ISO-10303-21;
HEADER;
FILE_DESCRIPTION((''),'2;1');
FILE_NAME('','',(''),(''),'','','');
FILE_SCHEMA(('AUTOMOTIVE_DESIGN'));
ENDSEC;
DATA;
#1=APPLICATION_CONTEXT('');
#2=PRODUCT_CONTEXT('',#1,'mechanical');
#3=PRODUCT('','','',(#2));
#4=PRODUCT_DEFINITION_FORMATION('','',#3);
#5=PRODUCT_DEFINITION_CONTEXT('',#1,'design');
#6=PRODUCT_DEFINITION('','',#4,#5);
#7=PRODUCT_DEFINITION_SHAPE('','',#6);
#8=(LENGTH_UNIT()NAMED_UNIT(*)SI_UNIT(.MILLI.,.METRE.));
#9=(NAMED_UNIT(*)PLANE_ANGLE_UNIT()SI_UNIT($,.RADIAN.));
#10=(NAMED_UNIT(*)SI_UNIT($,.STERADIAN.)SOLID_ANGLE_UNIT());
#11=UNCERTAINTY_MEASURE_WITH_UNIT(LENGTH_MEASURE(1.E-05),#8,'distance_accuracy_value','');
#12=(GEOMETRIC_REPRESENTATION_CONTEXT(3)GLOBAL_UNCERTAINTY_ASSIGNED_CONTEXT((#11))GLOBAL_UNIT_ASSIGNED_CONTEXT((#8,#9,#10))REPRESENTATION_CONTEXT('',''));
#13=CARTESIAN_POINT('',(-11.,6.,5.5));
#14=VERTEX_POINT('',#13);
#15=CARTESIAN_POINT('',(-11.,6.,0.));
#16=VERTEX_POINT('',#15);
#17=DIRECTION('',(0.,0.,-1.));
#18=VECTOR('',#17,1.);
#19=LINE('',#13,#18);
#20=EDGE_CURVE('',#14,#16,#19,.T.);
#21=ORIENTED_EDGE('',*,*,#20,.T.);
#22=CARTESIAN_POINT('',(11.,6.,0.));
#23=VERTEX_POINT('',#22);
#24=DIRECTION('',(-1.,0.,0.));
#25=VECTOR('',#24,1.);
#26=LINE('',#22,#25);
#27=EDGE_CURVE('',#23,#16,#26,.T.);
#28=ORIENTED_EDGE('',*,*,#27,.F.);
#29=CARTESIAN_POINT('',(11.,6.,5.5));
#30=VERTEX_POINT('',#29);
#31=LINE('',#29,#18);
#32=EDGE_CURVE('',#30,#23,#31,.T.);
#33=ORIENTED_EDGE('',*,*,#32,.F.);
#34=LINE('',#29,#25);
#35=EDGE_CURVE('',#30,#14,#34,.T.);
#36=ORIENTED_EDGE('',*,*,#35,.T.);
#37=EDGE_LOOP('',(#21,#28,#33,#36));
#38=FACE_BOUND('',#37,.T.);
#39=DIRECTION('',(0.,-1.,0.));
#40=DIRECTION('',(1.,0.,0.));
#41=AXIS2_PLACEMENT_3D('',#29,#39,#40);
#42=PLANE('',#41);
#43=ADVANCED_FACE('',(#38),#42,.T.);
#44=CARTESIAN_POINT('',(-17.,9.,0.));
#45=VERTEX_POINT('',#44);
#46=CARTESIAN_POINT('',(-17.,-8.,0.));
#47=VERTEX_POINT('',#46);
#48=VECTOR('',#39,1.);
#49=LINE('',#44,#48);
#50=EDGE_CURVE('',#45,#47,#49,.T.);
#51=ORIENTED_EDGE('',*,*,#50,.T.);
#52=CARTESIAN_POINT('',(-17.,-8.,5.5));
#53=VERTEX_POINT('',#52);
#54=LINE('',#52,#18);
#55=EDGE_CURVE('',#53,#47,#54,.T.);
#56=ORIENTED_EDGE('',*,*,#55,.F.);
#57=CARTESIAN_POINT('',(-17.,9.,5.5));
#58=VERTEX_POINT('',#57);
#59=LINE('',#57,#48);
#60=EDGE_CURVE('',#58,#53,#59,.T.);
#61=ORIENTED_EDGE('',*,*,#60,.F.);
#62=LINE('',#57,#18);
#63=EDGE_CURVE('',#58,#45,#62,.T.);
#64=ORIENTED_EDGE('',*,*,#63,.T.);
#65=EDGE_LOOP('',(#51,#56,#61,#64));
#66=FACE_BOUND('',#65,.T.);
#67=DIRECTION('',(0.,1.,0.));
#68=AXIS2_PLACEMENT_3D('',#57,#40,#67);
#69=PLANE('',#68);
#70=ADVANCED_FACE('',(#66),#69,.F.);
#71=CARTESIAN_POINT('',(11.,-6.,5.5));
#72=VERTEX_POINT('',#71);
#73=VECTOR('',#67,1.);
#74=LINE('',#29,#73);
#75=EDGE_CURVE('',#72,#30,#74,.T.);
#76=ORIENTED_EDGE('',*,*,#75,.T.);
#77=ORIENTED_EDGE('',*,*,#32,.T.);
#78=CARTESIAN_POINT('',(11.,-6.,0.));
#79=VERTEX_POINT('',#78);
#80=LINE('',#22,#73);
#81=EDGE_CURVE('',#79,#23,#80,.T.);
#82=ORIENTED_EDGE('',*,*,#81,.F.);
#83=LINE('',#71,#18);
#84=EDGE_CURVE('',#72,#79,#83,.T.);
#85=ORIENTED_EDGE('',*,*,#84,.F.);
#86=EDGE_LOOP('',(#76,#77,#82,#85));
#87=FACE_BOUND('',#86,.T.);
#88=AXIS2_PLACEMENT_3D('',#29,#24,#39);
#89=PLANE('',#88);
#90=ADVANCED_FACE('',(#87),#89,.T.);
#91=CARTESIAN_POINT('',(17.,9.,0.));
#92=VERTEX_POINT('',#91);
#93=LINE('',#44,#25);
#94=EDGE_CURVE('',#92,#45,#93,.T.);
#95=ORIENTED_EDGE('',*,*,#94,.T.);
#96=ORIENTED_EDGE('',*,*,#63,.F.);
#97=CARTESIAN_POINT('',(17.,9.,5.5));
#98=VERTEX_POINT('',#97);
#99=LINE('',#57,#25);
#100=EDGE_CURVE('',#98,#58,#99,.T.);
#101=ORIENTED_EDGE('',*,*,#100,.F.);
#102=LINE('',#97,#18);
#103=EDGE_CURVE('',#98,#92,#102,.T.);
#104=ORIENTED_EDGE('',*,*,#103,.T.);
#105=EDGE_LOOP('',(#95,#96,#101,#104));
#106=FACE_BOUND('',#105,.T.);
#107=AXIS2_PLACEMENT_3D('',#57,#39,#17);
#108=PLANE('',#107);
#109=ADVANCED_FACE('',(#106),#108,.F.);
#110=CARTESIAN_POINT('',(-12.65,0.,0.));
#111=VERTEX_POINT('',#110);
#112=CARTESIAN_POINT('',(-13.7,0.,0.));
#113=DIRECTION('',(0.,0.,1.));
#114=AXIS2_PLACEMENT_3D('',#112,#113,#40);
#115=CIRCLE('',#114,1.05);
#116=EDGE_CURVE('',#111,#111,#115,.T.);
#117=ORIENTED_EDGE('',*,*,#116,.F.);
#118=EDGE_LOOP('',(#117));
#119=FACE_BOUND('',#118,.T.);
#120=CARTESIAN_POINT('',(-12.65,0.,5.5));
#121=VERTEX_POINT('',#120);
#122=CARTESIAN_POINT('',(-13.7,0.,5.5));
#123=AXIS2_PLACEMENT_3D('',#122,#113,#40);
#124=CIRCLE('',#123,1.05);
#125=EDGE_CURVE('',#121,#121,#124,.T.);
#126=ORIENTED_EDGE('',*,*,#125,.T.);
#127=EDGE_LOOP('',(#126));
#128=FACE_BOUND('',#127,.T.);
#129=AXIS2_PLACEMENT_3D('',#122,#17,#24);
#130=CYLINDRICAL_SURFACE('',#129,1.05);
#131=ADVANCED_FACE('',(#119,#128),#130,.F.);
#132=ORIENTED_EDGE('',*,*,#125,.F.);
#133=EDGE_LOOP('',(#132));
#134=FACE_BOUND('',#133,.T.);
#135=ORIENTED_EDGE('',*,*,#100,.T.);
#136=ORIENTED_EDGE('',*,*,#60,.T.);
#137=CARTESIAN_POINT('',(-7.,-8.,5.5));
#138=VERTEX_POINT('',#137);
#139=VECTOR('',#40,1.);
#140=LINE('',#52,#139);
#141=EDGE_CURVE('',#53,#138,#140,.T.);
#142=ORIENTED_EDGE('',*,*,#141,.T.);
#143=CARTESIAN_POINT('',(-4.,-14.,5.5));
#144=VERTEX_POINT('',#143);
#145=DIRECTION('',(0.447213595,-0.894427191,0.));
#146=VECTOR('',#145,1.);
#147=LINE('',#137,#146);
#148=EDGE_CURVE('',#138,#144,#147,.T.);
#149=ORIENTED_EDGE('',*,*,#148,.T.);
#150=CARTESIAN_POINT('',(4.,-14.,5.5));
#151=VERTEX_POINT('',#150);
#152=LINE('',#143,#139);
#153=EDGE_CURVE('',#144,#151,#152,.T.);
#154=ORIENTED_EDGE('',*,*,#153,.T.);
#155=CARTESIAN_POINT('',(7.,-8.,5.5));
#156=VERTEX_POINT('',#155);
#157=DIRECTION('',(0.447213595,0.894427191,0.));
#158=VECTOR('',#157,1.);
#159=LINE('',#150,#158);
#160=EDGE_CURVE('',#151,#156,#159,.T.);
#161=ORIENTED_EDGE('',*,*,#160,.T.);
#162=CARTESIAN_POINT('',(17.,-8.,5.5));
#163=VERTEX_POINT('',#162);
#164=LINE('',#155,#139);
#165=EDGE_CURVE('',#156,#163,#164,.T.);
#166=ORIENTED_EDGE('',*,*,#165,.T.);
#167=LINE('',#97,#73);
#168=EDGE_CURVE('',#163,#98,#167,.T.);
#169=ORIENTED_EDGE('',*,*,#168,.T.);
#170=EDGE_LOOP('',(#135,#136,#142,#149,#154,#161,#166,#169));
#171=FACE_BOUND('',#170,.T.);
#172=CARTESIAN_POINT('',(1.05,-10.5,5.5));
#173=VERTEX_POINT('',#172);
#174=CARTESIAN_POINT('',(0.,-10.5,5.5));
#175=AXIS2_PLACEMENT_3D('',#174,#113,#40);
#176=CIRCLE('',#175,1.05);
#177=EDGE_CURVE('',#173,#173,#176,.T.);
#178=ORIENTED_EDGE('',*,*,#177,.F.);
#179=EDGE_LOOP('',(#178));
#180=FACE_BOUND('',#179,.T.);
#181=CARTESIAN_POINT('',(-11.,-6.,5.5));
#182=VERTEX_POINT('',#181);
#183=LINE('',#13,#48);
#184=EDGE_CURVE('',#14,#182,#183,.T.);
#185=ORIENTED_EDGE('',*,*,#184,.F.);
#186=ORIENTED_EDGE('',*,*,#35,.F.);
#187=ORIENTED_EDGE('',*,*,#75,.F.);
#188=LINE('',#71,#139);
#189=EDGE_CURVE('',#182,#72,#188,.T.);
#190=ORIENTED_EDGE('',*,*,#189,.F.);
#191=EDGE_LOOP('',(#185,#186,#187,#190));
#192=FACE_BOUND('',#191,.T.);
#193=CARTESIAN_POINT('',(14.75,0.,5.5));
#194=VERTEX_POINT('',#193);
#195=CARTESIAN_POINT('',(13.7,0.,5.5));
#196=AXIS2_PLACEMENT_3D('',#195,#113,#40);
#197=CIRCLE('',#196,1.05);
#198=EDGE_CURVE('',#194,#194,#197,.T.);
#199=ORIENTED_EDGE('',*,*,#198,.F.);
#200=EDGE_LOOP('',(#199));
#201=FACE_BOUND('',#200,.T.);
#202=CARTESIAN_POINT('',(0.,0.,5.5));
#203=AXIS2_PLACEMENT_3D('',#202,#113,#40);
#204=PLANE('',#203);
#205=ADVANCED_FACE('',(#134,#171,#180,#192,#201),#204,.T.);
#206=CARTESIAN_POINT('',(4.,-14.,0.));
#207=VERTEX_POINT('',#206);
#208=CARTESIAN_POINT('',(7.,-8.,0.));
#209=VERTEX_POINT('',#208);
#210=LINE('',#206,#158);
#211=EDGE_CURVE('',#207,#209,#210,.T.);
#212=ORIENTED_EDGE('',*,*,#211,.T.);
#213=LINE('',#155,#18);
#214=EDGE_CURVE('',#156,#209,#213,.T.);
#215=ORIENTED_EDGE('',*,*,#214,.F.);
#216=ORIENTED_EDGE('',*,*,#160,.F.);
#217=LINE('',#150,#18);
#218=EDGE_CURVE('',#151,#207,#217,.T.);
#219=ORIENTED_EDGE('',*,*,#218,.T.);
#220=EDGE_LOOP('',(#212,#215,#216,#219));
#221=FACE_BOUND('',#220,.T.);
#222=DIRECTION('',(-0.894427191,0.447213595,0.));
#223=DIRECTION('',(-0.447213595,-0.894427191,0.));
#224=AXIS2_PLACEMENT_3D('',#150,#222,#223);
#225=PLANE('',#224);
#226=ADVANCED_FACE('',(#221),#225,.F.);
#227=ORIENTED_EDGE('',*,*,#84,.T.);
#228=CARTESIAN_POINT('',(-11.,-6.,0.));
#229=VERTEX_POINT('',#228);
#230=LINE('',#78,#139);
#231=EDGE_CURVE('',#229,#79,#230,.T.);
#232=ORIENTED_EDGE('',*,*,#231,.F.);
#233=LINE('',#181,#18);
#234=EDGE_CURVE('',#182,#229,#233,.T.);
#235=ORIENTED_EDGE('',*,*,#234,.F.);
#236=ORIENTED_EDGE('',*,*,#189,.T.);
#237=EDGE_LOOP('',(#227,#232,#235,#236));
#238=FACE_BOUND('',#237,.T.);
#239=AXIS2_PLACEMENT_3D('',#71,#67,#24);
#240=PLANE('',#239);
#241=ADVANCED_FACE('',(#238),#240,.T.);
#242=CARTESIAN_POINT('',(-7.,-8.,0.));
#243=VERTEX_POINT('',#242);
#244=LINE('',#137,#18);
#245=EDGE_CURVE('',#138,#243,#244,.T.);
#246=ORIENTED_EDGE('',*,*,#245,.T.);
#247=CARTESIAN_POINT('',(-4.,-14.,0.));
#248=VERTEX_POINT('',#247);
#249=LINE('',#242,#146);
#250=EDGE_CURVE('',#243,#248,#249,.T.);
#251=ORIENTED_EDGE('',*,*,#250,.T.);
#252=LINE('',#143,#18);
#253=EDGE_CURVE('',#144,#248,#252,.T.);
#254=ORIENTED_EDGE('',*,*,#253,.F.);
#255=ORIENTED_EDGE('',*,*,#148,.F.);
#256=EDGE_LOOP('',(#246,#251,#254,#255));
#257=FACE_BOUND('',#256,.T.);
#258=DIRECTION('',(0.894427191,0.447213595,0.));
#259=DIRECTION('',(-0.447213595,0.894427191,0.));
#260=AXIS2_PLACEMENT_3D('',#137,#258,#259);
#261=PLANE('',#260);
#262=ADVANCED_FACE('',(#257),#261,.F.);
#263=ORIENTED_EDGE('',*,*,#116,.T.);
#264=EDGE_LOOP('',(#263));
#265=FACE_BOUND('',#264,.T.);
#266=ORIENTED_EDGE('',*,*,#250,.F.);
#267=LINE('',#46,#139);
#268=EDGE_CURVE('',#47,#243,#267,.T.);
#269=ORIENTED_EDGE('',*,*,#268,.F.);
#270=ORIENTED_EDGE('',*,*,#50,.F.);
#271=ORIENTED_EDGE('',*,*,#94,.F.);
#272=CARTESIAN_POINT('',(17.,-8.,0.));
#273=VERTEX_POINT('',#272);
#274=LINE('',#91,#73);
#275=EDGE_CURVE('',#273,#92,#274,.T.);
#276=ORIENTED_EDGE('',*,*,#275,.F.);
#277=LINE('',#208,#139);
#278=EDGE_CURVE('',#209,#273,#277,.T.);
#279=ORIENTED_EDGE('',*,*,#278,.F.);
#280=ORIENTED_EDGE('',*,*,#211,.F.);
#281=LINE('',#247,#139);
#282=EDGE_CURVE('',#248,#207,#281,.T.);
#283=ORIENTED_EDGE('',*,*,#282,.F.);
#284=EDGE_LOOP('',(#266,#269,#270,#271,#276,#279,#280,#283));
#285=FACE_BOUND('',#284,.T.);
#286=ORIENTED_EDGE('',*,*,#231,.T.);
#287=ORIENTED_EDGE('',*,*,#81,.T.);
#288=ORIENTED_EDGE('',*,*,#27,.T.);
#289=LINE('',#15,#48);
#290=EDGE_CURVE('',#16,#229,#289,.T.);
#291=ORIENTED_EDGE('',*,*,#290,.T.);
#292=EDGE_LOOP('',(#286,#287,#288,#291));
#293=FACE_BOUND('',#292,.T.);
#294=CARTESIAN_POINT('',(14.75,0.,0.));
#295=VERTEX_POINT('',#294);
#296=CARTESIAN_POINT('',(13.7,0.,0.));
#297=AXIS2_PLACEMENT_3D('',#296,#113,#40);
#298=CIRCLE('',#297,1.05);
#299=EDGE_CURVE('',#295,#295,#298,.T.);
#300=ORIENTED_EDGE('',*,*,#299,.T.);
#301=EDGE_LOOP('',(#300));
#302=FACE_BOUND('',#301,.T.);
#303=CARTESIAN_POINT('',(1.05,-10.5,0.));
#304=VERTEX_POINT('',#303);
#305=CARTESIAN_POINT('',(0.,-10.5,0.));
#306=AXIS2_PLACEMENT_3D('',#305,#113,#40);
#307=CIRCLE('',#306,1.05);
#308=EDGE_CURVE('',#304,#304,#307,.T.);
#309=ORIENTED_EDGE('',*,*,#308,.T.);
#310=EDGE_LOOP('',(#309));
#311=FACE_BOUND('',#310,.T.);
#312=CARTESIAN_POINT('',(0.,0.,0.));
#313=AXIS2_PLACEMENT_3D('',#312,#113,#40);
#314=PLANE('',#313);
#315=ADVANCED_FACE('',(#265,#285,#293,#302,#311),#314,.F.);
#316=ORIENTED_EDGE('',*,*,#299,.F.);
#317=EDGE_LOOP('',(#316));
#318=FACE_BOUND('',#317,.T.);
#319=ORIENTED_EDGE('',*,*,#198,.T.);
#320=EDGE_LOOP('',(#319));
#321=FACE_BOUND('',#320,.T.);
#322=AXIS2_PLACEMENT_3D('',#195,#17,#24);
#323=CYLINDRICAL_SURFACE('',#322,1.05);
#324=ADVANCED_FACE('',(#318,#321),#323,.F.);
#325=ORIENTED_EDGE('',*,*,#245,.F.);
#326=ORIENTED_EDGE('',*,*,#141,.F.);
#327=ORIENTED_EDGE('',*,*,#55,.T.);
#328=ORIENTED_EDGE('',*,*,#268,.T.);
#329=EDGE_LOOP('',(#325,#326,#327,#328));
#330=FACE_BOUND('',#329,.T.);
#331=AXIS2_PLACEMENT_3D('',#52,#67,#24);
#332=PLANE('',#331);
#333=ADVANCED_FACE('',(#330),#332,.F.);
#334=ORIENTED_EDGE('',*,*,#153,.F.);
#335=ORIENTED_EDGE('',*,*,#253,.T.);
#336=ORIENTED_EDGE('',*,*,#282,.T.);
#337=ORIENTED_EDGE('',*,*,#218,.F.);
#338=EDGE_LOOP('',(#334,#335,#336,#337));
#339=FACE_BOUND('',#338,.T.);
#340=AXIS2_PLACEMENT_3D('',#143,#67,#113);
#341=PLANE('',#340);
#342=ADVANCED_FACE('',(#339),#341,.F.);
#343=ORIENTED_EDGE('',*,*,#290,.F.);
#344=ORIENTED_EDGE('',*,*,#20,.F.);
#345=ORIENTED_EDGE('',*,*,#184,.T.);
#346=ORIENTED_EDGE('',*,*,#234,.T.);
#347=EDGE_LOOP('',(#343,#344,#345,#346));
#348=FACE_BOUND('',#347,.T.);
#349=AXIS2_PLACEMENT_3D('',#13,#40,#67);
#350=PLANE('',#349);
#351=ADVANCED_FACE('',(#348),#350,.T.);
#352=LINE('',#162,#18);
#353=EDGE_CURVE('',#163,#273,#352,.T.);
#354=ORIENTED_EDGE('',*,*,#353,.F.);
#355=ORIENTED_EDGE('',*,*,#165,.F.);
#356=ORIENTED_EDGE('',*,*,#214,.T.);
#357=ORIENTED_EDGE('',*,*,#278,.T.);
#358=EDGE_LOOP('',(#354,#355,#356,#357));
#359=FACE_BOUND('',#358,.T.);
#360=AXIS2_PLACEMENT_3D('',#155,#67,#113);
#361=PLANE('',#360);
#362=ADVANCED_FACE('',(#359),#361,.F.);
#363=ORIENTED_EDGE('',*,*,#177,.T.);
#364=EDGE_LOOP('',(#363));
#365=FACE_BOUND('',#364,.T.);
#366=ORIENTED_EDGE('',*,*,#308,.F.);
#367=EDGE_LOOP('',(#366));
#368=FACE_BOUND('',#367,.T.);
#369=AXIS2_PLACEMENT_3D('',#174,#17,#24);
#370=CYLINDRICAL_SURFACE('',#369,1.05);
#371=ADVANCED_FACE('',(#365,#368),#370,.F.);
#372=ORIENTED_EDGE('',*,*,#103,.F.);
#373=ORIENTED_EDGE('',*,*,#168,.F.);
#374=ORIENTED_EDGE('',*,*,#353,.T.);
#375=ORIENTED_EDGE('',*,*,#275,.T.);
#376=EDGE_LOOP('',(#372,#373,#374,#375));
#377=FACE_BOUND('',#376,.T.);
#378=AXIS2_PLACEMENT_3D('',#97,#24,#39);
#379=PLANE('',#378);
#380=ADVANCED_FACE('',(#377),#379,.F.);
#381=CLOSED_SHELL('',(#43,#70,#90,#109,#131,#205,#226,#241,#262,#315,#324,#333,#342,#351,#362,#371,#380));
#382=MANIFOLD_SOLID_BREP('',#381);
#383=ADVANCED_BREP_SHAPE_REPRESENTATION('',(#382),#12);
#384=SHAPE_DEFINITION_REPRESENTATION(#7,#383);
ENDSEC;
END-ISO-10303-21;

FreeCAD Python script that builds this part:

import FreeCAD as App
import Part
import Sketcher

V = App.Vector
Q = App.Units.Quantity

doc = App.newDocument("Part")
body = doc.addObject("PartDesign::Body", "Body")

# Sketch on XY plane
sketch1 = doc.addObject("Sketcher::SketchObject", "Sketch")
body.addObject(sketch1)
sketch1.AttachmentSupport = (doc.XY_Plane, [""])
sketch1.MapMode = "FlatFace"
sketch1.addGeometry(Part.LineSegment(V(-17, -8, 0), V(-7, -8, 0)), False)
sketch1.addGeometry(Part.LineSegment(V(-7, -8, 0), V(-4, -14, 0)), False)
sketch1.addGeometry(Part.LineSegment(V(-4, -14, 0), V(4, -14, 0)), False)
sketch1.addGeometry(Part.LineSegment(V(4, -14, 0), V(7, -8, 0)), False)
sketch1.addGeometry(Part.LineSegment(V(7, -8, 0), V(17, -8, 0)), False)
sketch1.addGeometry(Part.LineSegment(V(17, -8, 0), V(17, 9, 0)), False)
sketch1.addGeometry(Part.LineSegment(V(17, 9, 0), V(-17, 9, 0)), False)
sketch1.addGeometry(Part.LineSegment(V(-17, 9, 0), V(-17, -8, 0)), False)
sketch1.addGeometry(Part.Circle(V(0, -10.5, 0), V(0, 0, 1), 1.1), False)
sketch1.addGeometry(Part.Circle(V(-13.7, 0, 0), V(0, 0, 1), 1.1), False)
sketch1.addGeometry(Part.LineSegment(V(11, -6, 0), V(-11, -6, 0)), False)
sketch1.addGeometry(Part.LineSegment(V(-11, -6, 0), V(-11, 6, 0)), False)
sketch1.addGeometry(Part.LineSegment(V(-11, 6, 0), V(11, 6, 0)), False)
sketch1.addGeometry(Part.LineSegment(V(11, 6, 0), V(11, -6, 0)), False)
sketch1.addGeometry(Part.Circle(V(13.7, 0, 0), V(0, 0, 1), 1.1), False)
sketch1.addConstraint(Sketcher.Constraint("Coincident", 0, 2, 1, 1))
sketch1.addConstraint(Sketcher.Constraint("Coincident", 1, 2, 2, 1))
sketch1.addConstraint(Sketcher.Constraint("Coincident", 2, 2, 3, 1))
sketch1.addConstraint(Sketcher.Constraint("Coincident", 3, 2, 4, 1))
sketch1.addConstraint(Sketcher.Constraint("Coincident", 4, 2, 5, 1))
sketch1.addConstraint(Sketcher.Constraint("Coincident", 5, 2, 6, 1))
sketch1.addConstraint(Sketcher.Constraint("Coincident", 6, 2, 7, 1))
sketch1.addConstraint(Sketcher.Constraint("Coincident", 7, 2, 0, 1))
sketch1.addConstraint(Sketcher.Constraint("Coincident", 10, 2, 11, 1))
sketch1.addConstraint(Sketcher.Constraint("Coincident", 11, 2, 12, 1))
sketch1.addConstraint(Sketcher.Constraint("Coincident", 12, 2, 13, 1))
sketch1.addConstraint(Sketcher.Constraint("Coincident", 13, 2, 10, 1))
sketch1.addConstraint(Sketcher.Constraint("Horizontal", 0))
sketch1.addConstraint(Sketcher.Constraint("Horizontal", 2))
sketch1.addConstraint(Sketcher.Constraint("Horizontal", 4))
sketch1.addConstraint(Sketcher.Constraint("Vertical", 5))
sketch1.addConstraint(Sketcher.Constraint("Horizontal", 6))
sketch1.addConstraint(Sketcher.Constraint("Vertical", 7))
sketch1.addConstraint(Sketcher.Constraint("Horizontal", 10))
sketch1.addConstraint(Sketcher.Constraint("Vertical", 11))
sketch1.addConstraint(Sketcher.Constraint("Horizontal", 12))
sketch1.addConstraint(Sketcher.Constraint("Vertical", 13))
sketch1.addConstraint(Sketcher.Constraint("Equal", 8, 9))
sketch1.addConstraint(Sketcher.Constraint("Equal", 9, 14))
sketch1.addConstraint(Sketcher.Constraint("Symmetric", 9, 3, 14, 3, -1, 1))
sketch1.addConstraint(Sketcher.Constraint("Symmetric", 10, 2, 12, 2, -1, 1))
sketch1.addConstraint(Sketcher.Constraint("Symmetric", 0, 2, 3, 2, -2))
sketch1.addConstraint(Sketcher.Constraint("PointOnObject", 8, 3, -2))
sketch1.addConstraint(Sketcher.Constraint("PointOnObject", 9, 3, -1))
sketch1.addConstraint(Sketcher.Constraint("Equal", 0, 4))
sketch1.addConstraint(Sketcher.Constraint("Equal", 1, 3))
sketch1.addConstraint(Sketcher.Constraint("Diameter", 8, Q("2.1 mm")))
sketch1.addConstraint(Sketcher.Constraint("DistanceX", 0, 1, 0, 2, Q("10 mm")))
sketch1.addConstraint(Sketcher.Constraint("DistanceX", 2, 1, 2, 2, Q("8 mm")))
sketch1.addConstraint(Sketcher.Constraint("DistanceX", 6, 2, 6, 1, Q("34 mm")))
sketch1.addConstraint(Sketcher.Constraint("DistanceX", 10, 2, 10, 1, Q("22 mm")))
sketch1.addConstraint(Sketcher.Constraint("DistanceY", 5, 1, 5, 2, Q("17 mm")))
sketch1.addConstraint(Sketcher.Constraint("DistanceY", 11, 1, 11, 2, Q("12 mm")))
sketch1.addConstraint(Sketcher.Constraint("DistanceY", 0, 2, -1, 1, Q("8 mm")))
sketch1.addConstraint(Sketcher.Constraint("DistanceY", 1, 2, -1, 1, Q("14 mm")))
sketch1.addConstraint(Sketcher.Constraint("DistanceY", 8, 3, -1, 1, Q("10.5 mm")))
sketch1.addConstraint(Sketcher.Constraint("DistanceX", 9, 3, -1, 1, Q("13.7 mm")))
pad1 = doc.addObject("PartDesign::Pad", "Pad")
body.addObject(pad1)
pad1.Profile = sketch1
pad1.Length = 5.5

doc.recompute()
